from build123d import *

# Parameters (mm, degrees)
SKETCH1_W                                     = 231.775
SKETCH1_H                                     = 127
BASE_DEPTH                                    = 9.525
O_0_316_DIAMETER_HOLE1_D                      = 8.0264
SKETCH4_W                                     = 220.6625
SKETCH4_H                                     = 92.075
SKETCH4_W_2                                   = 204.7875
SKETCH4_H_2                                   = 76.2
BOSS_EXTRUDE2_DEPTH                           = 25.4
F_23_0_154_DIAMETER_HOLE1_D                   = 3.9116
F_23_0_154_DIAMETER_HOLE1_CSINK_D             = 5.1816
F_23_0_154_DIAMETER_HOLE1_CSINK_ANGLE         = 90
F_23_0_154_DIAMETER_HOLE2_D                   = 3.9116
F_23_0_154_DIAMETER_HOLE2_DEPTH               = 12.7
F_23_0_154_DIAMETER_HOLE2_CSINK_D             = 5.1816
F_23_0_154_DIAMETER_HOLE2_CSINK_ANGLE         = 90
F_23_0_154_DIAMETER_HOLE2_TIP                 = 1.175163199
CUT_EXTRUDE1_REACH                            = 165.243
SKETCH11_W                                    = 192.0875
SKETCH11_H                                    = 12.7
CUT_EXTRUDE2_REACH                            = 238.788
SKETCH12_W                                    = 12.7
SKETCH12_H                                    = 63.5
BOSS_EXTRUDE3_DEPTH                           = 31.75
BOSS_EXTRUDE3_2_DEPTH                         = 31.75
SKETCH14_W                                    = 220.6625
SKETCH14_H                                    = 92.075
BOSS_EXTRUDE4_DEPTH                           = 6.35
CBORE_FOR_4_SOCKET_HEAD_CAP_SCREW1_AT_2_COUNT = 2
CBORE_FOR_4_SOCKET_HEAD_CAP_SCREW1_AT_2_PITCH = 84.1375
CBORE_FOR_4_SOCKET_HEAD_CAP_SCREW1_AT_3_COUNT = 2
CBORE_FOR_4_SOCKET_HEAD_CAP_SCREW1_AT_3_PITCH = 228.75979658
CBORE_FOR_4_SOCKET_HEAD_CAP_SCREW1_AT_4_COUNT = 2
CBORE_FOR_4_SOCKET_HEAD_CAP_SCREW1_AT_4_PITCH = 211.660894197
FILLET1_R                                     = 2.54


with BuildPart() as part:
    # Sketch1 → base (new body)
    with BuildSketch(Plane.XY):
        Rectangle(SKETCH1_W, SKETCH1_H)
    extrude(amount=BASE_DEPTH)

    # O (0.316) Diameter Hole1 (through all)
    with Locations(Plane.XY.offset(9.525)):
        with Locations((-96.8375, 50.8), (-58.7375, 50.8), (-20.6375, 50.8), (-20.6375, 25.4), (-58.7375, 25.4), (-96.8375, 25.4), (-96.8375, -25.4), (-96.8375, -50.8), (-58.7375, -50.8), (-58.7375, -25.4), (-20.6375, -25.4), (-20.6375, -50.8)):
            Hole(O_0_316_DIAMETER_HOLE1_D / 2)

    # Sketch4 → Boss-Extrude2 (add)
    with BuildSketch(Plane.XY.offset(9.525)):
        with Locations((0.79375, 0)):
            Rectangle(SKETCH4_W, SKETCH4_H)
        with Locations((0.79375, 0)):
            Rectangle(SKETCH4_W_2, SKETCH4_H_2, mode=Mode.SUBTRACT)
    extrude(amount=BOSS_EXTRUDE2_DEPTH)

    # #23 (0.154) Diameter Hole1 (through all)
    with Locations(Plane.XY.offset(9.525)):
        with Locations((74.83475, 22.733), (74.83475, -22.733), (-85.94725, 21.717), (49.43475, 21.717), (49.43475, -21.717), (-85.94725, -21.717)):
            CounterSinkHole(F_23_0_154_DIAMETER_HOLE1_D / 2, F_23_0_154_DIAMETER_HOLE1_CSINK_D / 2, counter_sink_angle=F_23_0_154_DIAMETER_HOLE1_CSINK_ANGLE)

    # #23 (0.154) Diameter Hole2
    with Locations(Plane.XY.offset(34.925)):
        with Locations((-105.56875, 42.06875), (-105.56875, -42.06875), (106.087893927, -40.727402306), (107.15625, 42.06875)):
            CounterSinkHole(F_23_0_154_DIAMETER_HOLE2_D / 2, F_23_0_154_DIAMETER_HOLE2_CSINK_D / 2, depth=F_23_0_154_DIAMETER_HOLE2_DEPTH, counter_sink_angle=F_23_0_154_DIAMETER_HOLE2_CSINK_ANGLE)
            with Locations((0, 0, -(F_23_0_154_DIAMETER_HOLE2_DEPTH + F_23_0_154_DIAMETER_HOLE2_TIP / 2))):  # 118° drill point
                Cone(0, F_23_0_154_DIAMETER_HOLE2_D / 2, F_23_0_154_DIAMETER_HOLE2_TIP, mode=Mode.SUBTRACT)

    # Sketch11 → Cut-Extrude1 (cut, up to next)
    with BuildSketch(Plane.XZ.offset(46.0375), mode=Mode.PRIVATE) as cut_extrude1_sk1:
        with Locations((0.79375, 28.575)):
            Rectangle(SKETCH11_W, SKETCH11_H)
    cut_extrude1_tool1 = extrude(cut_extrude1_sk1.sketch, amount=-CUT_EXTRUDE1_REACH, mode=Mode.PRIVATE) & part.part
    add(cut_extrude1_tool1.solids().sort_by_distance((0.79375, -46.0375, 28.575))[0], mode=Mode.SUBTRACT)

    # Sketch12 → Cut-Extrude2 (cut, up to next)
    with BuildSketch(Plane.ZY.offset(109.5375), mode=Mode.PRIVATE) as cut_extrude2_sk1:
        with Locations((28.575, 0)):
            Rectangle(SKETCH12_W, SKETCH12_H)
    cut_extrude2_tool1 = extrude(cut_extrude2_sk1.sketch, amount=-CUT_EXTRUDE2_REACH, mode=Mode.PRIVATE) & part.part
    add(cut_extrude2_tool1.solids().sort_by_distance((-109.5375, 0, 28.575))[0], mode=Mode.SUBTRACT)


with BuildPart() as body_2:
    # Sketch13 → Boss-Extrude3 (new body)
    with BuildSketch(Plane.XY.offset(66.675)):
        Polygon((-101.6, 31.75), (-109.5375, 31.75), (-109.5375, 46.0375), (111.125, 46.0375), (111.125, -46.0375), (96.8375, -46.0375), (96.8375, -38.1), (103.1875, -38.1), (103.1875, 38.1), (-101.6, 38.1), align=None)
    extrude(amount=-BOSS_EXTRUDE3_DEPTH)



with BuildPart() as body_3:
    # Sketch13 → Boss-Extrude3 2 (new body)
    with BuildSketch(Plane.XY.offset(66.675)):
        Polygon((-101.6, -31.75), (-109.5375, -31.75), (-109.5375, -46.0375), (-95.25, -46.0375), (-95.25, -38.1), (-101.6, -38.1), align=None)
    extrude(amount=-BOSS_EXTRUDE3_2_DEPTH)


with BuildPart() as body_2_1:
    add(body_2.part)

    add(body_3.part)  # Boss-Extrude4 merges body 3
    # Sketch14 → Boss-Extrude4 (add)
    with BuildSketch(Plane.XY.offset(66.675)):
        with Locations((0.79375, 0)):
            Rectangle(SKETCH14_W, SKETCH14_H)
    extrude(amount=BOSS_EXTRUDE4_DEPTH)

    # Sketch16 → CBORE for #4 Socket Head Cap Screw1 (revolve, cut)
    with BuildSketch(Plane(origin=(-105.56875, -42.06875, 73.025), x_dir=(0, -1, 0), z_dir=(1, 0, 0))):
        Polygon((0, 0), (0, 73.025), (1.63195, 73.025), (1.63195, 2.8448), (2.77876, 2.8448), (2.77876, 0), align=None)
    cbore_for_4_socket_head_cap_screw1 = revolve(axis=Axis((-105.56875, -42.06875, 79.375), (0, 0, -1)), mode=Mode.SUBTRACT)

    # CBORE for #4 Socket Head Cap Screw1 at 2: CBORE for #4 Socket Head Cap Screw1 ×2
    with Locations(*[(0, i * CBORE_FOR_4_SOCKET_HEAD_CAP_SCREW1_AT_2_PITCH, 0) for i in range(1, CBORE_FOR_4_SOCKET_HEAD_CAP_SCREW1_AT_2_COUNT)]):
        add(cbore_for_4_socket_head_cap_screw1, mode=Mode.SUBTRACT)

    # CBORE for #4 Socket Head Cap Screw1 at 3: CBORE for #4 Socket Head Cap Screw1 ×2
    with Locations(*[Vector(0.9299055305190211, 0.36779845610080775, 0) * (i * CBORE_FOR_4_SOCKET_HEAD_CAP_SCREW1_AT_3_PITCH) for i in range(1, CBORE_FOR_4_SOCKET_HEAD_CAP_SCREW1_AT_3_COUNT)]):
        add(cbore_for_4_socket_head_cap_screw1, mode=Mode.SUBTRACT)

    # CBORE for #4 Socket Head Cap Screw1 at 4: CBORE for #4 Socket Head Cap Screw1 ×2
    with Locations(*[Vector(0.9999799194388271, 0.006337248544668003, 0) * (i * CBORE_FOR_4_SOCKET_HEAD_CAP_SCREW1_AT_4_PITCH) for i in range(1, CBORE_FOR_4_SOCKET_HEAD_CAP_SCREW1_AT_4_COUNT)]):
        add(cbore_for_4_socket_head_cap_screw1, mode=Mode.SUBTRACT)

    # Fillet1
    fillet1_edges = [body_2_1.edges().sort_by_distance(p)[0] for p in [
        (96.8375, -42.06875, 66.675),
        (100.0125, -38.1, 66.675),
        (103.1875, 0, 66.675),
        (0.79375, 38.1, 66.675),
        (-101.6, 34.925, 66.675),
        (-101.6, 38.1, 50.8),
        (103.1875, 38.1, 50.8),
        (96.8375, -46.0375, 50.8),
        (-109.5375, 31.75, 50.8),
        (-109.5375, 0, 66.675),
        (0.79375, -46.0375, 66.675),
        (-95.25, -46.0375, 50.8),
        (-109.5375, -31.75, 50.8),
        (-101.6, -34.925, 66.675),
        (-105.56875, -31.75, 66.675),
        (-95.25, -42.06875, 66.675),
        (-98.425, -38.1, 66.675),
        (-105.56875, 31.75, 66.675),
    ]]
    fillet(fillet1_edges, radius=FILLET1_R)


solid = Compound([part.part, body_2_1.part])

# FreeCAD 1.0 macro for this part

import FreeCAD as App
import Part
import Sketcher
from FreeCAD import Vector
Q = App.Units.Quantity


def edges_at(feature, points):
    """Names of the edges that pass closest to the given points."""
    edges = feature.Shape.Edges
    near = lambda p: min(range(len(edges)), key=lambda i: edges[i].distToShape(Part.Vertex(*p))[0])
    return sorted({f"Edge{near(p) + 1}" for p in points})

doc = App.newDocument("Part")
body = doc.addObject("PartDesign::Body", "Body")

# Sketch on XY plane
sketch1 = body.newObject("Sketcher::SketchObject", "Sketch")
sketch1.AttachmentSupport = (doc.getObject("XY_Plane"), [""])
sketch1.MapMode = "FlatFace"
sketch1.addGeometry([
    Part.LineSegment(Vector(-116, 64, 0), Vector(-116, -64, 0)),
    Part.LineSegment(Vector(-116, -64, 0), Vector(116, -64, 0)),
    Part.LineSegment(Vector(116, -64, 0), Vector(116, 64, 0)),
    Part.LineSegment(Vector(116, 64, 0), Vector(-116, 64, 0)),
], False)
sketch1.addConstraint([
    Sketcher.Constraint("Coincident", 0, 2, 1, 1),
    Sketcher.Constraint("Coincident", 1, 2, 2, 1),
    Sketcher.Constraint("Coincident", 2, 2, 3, 1),
    Sketcher.Constraint("Coincident", 3, 2, 0, 1),
    Sketcher.Constraint("Vertical", 0),
    Sketcher.Constraint("Horizontal", 1),
    Sketcher.Constraint("Vertical", 2),
    Sketcher.Constraint("Horizontal", 3),
    Sketcher.Constraint("Symmetric", 0, 2, 2, 2, -1, 1),
    Sketcher.Constraint("DistanceY", 0, 2, 0, 1, Q("5 in")),
    Sketcher.Constraint("DistanceX", 1, 1, 1, 2, Q("9.125 in")),
])
pad1 = body.newObject("PartDesign::Pad", "Pad")
pad1.Profile = sketch1
pad1.Length = Q("0.375 in")

# Sketch on XY plane
sketch2 = body.newObject("Sketcher::SketchObject", "Sketch001")
sketch2.AttachmentSupport = (doc.getObject("XY_Plane"), [""])
sketch2.MapMode = "FlatFace"
sketch2.AttachmentOffset = App.Placement(Vector(0, 0, 0.375 * 25.4), App.Rotation())
sketch2.addGeometry([
    Part.Circle(Vector(-96.8, 50.8, 0), Vector(0, 0, 1), 4),  # 0
    Part.Circle(Vector(-58.7, 50.8, 0), Vector(0, 0, 1), 4),  # 1
    Part.Circle(Vector(-20.6, 50.8, 0), Vector(0, 0, 1), 4),  # 2
    Part.Circle(Vector(-20.6, 25.4, 0), Vector(0, 0, 1), 4),  # 3
    Part.Circle(Vector(-58.7, 25.4, 0), Vector(0, 0, 1), 4),  # 4
    Part.Circle(Vector(-96.8, 25.4, 0), Vector(0, 0, 1), 4),  # 5
    Part.Circle(Vector(-96.8, -25.4, 0), Vector(0, 0, 1), 4),  # 6
    Part.Circle(Vector(-96.8, -50.8, 0), Vector(0, 0, 1), 4),  # 7
    Part.Circle(Vector(-58.7, -50.8, 0), Vector(0, 0, 1), 4),  # 8
    Part.Circle(Vector(-58.7, -25.4, 0), Vector(0, 0, 1), 4),  # 9
    Part.Circle(Vector(-20.6, -25.4, 0), Vector(0, 0, 1), 4),  # 10
    Part.Circle(Vector(-20.6, -50.8, 0), Vector(0, 0, 1), 4),  # 11
], False)
sketch2.addConstraint([
    Sketcher.Constraint("Equal", 0, 1),
    Sketcher.Constraint("Equal", 1, 2),
    Sketcher.Constraint("Equal", 2, 3),
    Sketcher.Constraint("Equal", 3, 4),
    Sketcher.Constraint("Equal", 4, 5),
    Sketcher.Constraint("Equal", 5, 6),
    Sketcher.Constraint("Equal", 6, 7),
    Sketcher.Constraint("Equal", 7, 8),
    Sketcher.Constraint("Equal", 8, 9),
    Sketcher.Constraint("Equal", 9, 10),
    Sketcher.Constraint("Equal", 10, 11),
    Sketcher.Constraint("Symmetric", 5, 3, 6, 3, -1),
    Sketcher.Constraint("Symmetric", 0, 3, 7, 3, -1),
    Sketcher.Constraint("Symmetric", 1, 3, 8, 3, -1),
    Sketcher.Constraint("Symmetric", 4, 3, 9, 3, -1),
    Sketcher.Constraint("Symmetric", 3, 3, 10, 3, -1),
    Sketcher.Constraint("Symmetric", 2, 3, 11, 3, -1),
    Sketcher.Constraint("Horizontal", 0, 3, 1, 3),
    Sketcher.Constraint("Horizontal", 1, 3, 2, 3),
    Sketcher.Constraint("Horizontal", 3, 3, 4, 3),
    Sketcher.Constraint("Horizontal", 4, 3, 5, 3),
    Sketcher.Constraint("Vertical", 2, 3, 3, 3),
    Sketcher.Constraint("Vertical", 1, 3, 4, 3),
    Sketcher.Constraint("Vertical", 0, 3, 5, 3),
    Sketcher.Constraint("Diameter", 0, Q("0.316 in")),
    Sketcher.Constraint("DistanceY", -1, 1, 0, 3, Q("2 in")),
    Sketcher.Constraint("DistanceY", -1, 1, 3, 3, Q("1 in")),
    Sketcher.Constraint("DistanceX", 0, 3, 2, 3, Q("3 in")),
    Sketcher.Constraint("DistanceX", 0, 3, 1, 3, Q("1.5 in")),
    Sketcher.Constraint("DistanceX", 0, 3, -1, 1, Q("3.8125 in")),
])
doc.recompute()
hole = body.newObject("PartDesign::Hole", "Hole")
hole.Profile = sketch2
hole.ThreadType = "None"
hole.Diameter = Q("0.316 in")
hole.DepthType = "ThroughAll"

# Sketch on XY plane
sketch3 = body.newObject("Sketcher::SketchObject", "Sketch002")
sketch3.AttachmentSupport = (doc.getObject("XY_Plane"), [""])
sketch3.MapMode = "FlatFace"
sketch3.AttachmentOffset = App.Placement(Vector(0, 0, 0.375 * 25.4), App.Rotation())
sketch3.addGeometry([
    Part.LineSegment(Vector(-110, 46, 0), Vector(-110, -46, 0)),  # 0
    Part.LineSegment(Vector(-110, -46, 0), Vector(111, -46, 0)),  # 1
    Part.LineSegment(Vector(111, -46, 0), Vector(111, 46, 0)),  # 2
    Part.LineSegment(Vector(111, 46, 0), Vector(-110, 46, 0)),  # 3
    Part.LineSegment(Vector(103, -38, 0), Vector(-102, -38, 0)),  # 4
    Part.LineSegment(Vector(-102, -38, 0), Vector(-102, 38, 0)),  # 5
    Part.LineSegment(Vector(-102, 38, 0), Vector(103, 38, 0)),  # 6
    Part.LineSegment(Vector(103, 38, 0), Vector(103, -38, 0)),  # 7
], False)
sketch3.addConstraint([
    Sketcher.Constraint("Coincident", 0, 2, 1, 1),
    Sketcher.Constraint("Coincident", 1, 2, 2, 1),
    Sketcher.Constraint("Coincident", 2, 2, 3, 1),
    Sketcher.Constraint("Coincident", 3, 2, 0, 1),
    Sketcher.Constraint("Coincident", 4, 2, 5, 1),
    Sketcher.Constraint("Coincident", 5, 2, 6, 1),
    Sketcher.Constraint("Coincident", 6, 2, 7, 1),
    Sketcher.Constraint("Coincident", 7, 2, 4, 1),
    Sketcher.Constraint("Vertical", 0),
    Sketcher.Constraint("Horizontal", 1),
    Sketcher.Constraint("Vertical", 2),
    Sketcher.Constraint("Horizontal", 3),
    Sketcher.Constraint("Horizontal", 4),
    Sketcher.Constraint("Vertical", 5),
    Sketcher.Constraint("Horizontal", 6),
    Sketcher.Constraint("Vertical", 7),
    Sketcher.Constraint("DistanceY", 5, 1, 5, 2, Q("3 in")),
    Sketcher.Constraint("DistanceX", 4, 2, -1, 1, Q("4 in")),
    Sketcher.Constraint("DistanceY", 4, 2, -1, 1, Q("1.5 in")),
    Sketcher.Constraint("DistanceX", 1, 1, 1, 2, Q("8.6875 in")),
    Sketcher.Constraint("DistanceX", 4, 2, 4, 1, Q("8.0625 in")),
    Sketcher.Constraint("DistanceY", 0, 2, 0, 1, Q("3.625 in")),
    Sketcher.Constraint("DistanceX", 0, 2, -1, 1, Q("4.3125 in")),
    Sketcher.Constraint("DistanceY", 0, 2, -1, 1, Q("1.8125 in")),
])
pad2 = body.newObject("PartDesign::Pad", "Pad001")
pad2.Profile = sketch3
pad2.Length = Q("1 in")

# Sketch on XY plane
sketch4 = body.newObject("Sketcher::SketchObject", "Sketch003")
sketch4.AttachmentSupport = (doc.getObject("XY_Plane"), [""])
sketch4.MapMode = "FlatFace"
sketch4.AttachmentOffset = App.Placement(Vector(0, 0, 0.375 * 25.4), App.Rotation())
sketch4.addGeometry([
    Part.Circle(Vector(74.8, 22.7, 0), Vector(0, 0, 1), 2),  # 0
    Part.Circle(Vector(74.8, -22.7, 0), Vector(0, 0, 1), 2),  # 1
    Part.Circle(Vector(-85.9, 21.7, 0), Vector(0, 0, 1), 2),  # 2
    Part.Circle(Vector(49.4, 21.7, 0), Vector(0, 0, 1), 2),  # 3
    Part.Circle(Vector(49.4, -21.7, 0), Vector(0, 0, 1), 2),  # 4
    Part.Circle(Vector(-85.9, -21.7, 0), Vector(0, 0, 1), 2),  # 5
], False)
sketch4.addConstraint([
    Sketcher.Constraint("Equal", 0, 1),
    Sketcher.Constraint("Equal", 1, 2),
    Sketcher.Constraint("Equal", 2, 3),
    Sketcher.Constraint("Equal", 3, 4),
    Sketcher.Constraint("Equal", 4, 5),
    Sketcher.Constraint("Symmetric", 0, 3, 1, 3, -1),
    Sketcher.Constraint("Symmetric", 3, 3, 4, 3, -1),
    Sketcher.Constraint("Symmetric", 2, 3, 5, 3, -1),
    Sketcher.Constraint("Horizontal", 2, 3, 3, 3),
    Sketcher.Constraint("Diameter", 0, Q("0.154 in")),
    Sketcher.Constraint("DistanceX", 3, 3, 0, 3, Q("1 in")),
    Sketcher.Constraint("DistanceY", 1, 3, 0, 3, Q("1.79 in")),
    Sketcher.Constraint("DistanceX", 2, 3, 0, 3, Q("6.33 in")),
    Sketcher.Constraint("DistanceY", 2, 3, 0, 3, Q("0.04 in")),
    Sketcher.Constraint("DistanceX", -1, 1, 0, 3, 74.83475),
])
doc.recompute()
hole2 = body.newObject("PartDesign::Hole", "Hole001")
hole2.Profile = sketch4
hole2.ThreadType = "None"
hole2.Diameter = Q("0.154 in")
hole2.DepthType = "ThroughAll"
hole2.HoleCutType = "Countersink"
hole2.HoleCutDiameter = Q("0.204 in")
hole2.HoleCutCountersinkAngle = 90

# Sketch on XY plane
sketch5 = body.newObject("Sketcher::SketchObject", "Sketch004")
sketch5.AttachmentSupport = (doc.getObject("XY_Plane"), [""])
sketch5.MapMode = "FlatFace"
sketch5.AttachmentOffset = App.Placement(Vector(0, 0, 1.375 * 25.4), App.Rotation())
sketch5.addGeometry([
    Part.Circle(Vector(-105.6, 42.1, 0), Vector(0, 0, 1), 2),
    Part.Circle(Vector(-105.6, -42.1, 0), Vector(0, 0, 1), 2),
    Part.Circle(Vector(106.1, -40.7, 0), Vector(0, 0, 1), 2),
    Part.Circle(Vector(107.2, 42.1, 0), Vector(0, 0, 1), 2),
], False)
sketch5.addConstraint([
    Sketcher.Constraint("Equal", 0, 1),
    Sketcher.Constraint("Equal", 1, 2),
    Sketcher.Constraint("Equal", 2, 3),
    Sketcher.Constraint("Symmetric", 0, 3, 1, 3, -1),
    Sketcher.Constraint("Horizontal", 0, 3, 3, 3),
    Sketcher.Constraint("Diameter", 0, Q("0.154 in")),
    Sketcher.Constraint("DistanceX", 0, 3, -1, 1, Q("4.15625 in")),
    Sketcher.Constraint("DistanceY", -1, 1, 0, 3, Q("1.65625 in")),
    Sketcher.Constraint("DistanceX", -1, 1, 3, 3, Q("4.21875 in")),
    Sketcher.Constraint("DistanceX", -1, 1, 2, 3, 106.087894),
    Sketcher.Constraint("DistanceY", 2, 3, -1, 1, 40.727402),
])
doc.recompute()
hole3 = body.newObject("PartDesign::Hole", "Hole002")
hole3.Profile = sketch5
hole3.ThreadType = "None"
hole3.Diameter = Q("0.154 in")
hole3.DepthType = "Dimension"
hole3.Depth = Q("0.5 in")
hole3.DrillPoint = "Angled"
hole3.DrillPointAngle = 118
hole3.HoleCutType = "Countersink"
hole3.HoleCutDiameter = Q("0.204 in")
hole3.HoleCutCountersinkAngle = 90

# Sketch on XZ plane
sketch6 = body.newObject("Sketcher::SketchObject", "Sketch005")
sketch6.AttachmentSupport = (doc.getObject("XZ_Plane"), [""])
sketch6.MapMode = "FlatFace"
sketch6.AttachmentOffset = App.Placement(Vector(0, 0, 1.8125 * 25.4), App.Rotation())
sketch6.addGeometry([
    Part.LineSegment(Vector(-95, 35, 0), Vector(-95, 22, 0)),
    Part.LineSegment(Vector(-95, 22, 0), Vector(97, 22, 0)),
    Part.LineSegment(Vector(97, 22, 0), Vector(97, 35, 0)),
    Part.LineSegment(Vector(97, 35, 0), Vector(-95, 35, 0)),
], False)
sketch6.addConstraint([
    Sketcher.Constraint("Coincident", 0, 2, 1, 1),
    Sketcher.Constraint("Coincident", 1, 2, 2, 1),
    Sketcher.Constraint("Coincident", 2, 2, 3, 1),
    Sketcher.Constraint("Coincident", 3, 2, 0, 1),
    Sketcher.Constraint("Vertical", 0),
    Sketcher.Constraint("Horizontal", 1),
    Sketcher.Constraint("Vertical", 2),
    Sketcher.Constraint("Horizontal", 3),
    Sketcher.Constraint("DistanceY", 0, 2, 0, 1, Q("0.5 in")),
    Sketcher.Constraint("DistanceX", 1, 1, 1, 2, Q("7.5625 in")),
    Sketcher.Constraint("DistanceX", 0, 2, -1, 1, Q("3.75 in")),
    Sketcher.Constraint("DistanceY", -1, 1, 0, 2, Q("0.875 in")),
])
pocket1 = body.newObject("PartDesign::Pocket", "Pocket")
pocket1.Profile = sketch6
pocket1.Type = "UpToFirst"

# Sketch on YZ plane
sketch7 = body.newObject("Sketcher::SketchObject", "Sketch006")
sketch7.AttachmentSupport = (doc.getObject("YZ_Plane"), [""])
sketch7.MapMode = "FlatFace"
sketch7.AttachmentOffset = App.Placement(Vector(0, 0, -4.3125 * 25.4), App.Rotation())
sketch7.addGeometry([
    Part.LineSegment(Vector(32, 22, 0), Vector(-32, 22, 0)),
    Part.LineSegment(Vector(-32, 22, 0), Vector(-32, 35, 0)),
    Part.LineSegment(Vector(-32, 35, 0), Vector(32, 35, 0)),
    Part.LineSegment(Vector(32, 35, 0), Vector(32, 22, 0)),
], False)
sketch7.addConstraint([
    Sketcher.Constraint("Coincident", 0, 2, 1, 1),
    Sketcher.Constraint("Coincident", 1, 2, 2, 1),
    Sketcher.Constraint("Coincident", 2, 2, 3, 1),
    Sketcher.Constraint("Coincident", 3, 2, 0, 1),
    Sketcher.Constraint("Horizontal", 0),
    Sketcher.Constraint("Vertical", 1),
    Sketcher.Constraint("Horizontal", 2),
    Sketcher.Constraint("Vertical", 3),
    Sketcher.Constraint("DistanceX", 0, 2, 0, 1, Q("2.5 in")),
    Sketcher.Constraint("DistanceY", 1, 1, 1, 2, Q("0.5 in")),
    Sketcher.Constraint("DistanceX", 0, 2, -1, 1, Q("1.25 in")),
    Sketcher.Constraint("DistanceY", -1, 1, 0, 2, Q("0.875 in")),
])
pocket2 = body.newObject("PartDesign::Pocket", "Pocket001")
pocket2.Profile = sketch7
pocket2.Type = "UpToFirst"
pocket2.Reversed = True
body2 = doc.addObject("PartDesign::Body", "Body001")

# Sketch on XY plane
sketch8 = body2.newObject("Sketcher::SketchObject", "Sketch007")
sketch8.AttachmentSupport = (doc.getObject("XY_Plane001"), [""])
sketch8.MapMode = "FlatFace"
sketch8.AttachmentOffset = App.Placement(Vector(0, 0, 2.625 * 25.4), App.Rotation())
sketch8.addGeometry([
    Part.LineSegment(Vector(-110, 32, 0), Vector(-102, 32, 0)),  # 0
    Part.LineSegment(Vector(-102, 32, 0), Vector(-102, 38, 0)),  # 1
    Part.LineSegment(Vector(-102, 38, 0), Vector(103, 38, 0)),  # 2
    Part.LineSegment(Vector(103, 38, 0), Vector(103, -38, 0)),  # 3
    Part.LineSegment(Vector(103, -38, 0), Vector(97, -38, 0)),  # 4
    Part.LineSegment(Vector(97, -38, 0), Vector(97, -46, 0)),  # 5
    Part.LineSegment(Vector(97, -46, 0), Vector(111, -46, 0)),  # 6
    Part.LineSegment(Vector(111, -46, 0), Vector(111, 46, 0)),  # 7
    Part.LineSegment(Vector(111, 46, 0), Vector(-110, 46, 0)),  # 8
    Part.LineSegment(Vector(-110, 46, 0), Vector(-110, 32, 0)),  # 9
], False)
sketch8.addConstraint([
    Sketcher.Constraint("Coincident", 0, 2, 1, 1),
    Sketcher.Constraint("Coincident", 1, 2, 2, 1),
    Sketcher.Constraint("Coincident", 2, 2, 3, 1),
    Sketcher.Constraint("Coincident", 3, 2, 4, 1),
    Sketcher.Constraint("Coincident", 4, 2, 5, 1),
    Sketcher.Constraint("Coincident", 5, 2, 6, 1),
    Sketcher.Constraint("Coincident", 6, 2, 7, 1),
    Sketcher.Constraint("Coincident", 7, 2, 8, 1),
    Sketcher.Constraint("Coincident", 8, 2, 9, 1),
    Sketcher.Constraint("Coincident", 9, 2, 0, 1),
    Sketcher.Constraint("Horizontal", 0),
    Sketcher.Constraint("Vertical", 1),
    Sketcher.Constraint("Horizontal", 2),
    Sketcher.Constraint("Vertical", 3),
    Sketcher.Constraint("Horizontal", 4),
    Sketcher.Constraint("Vertical", 5),
    Sketcher.Constraint("Horizontal", 6),
    Sketcher.Constraint("Vertical", 7),
    Sketcher.Constraint("Horizontal", 8),
    Sketcher.Constraint("Vertical", 9),
    Sketcher.Constraint("Equal", 4, 1),
    Sketcher.Constraint("Equal", 0, 5),
    Sketcher.Constraint("Equal", 6, 9),
    Sketcher.Constraint("DistanceY", 3, 2, 3, 1, Q("3 in")),
    Sketcher.Constraint("DistanceX", 0, 2, -1, 1, Q("4 in")),
    Sketcher.Constraint("DistanceX", 4, 2, 4, 1, Q("0.25 in")),
    Sketcher.Constraint("DistanceY", -1, 1, 1, 2, Q("1.5 in")),
    Sketcher.Constraint("DistanceX", 0, 1, 0, 2, Q("0.3125 in")),
    Sketcher.Constraint("DistanceX", 2, 1, 2, 2, Q("8.0625 in")),
    Sketcher.Constraint("DistanceX", 6, 1, 6, 2, Q("0.5625 in")),
])
pad3 = body2.newObject("PartDesign::Pad", "Pad002")
pad3.Profile = sketch8
pad3.Length = Q("1.25 in")
pad3.Reversed = True
body3 = doc.addObject("PartDesign::Body", "Body002")

# Sketch on XY plane
sketch9 = body3.newObject("Sketcher::SketchObject", "Sketch008")
sketch9.AttachmentSupport = (doc.getObject("XY_Plane002"), [""])
sketch9.MapMode = "FlatFace"
sketch9.AttachmentOffset = App.Placement(Vector(0, 0, 2.625 * 25.4), App.Rotation())
sketch9.addGeometry([
    Part.LineSegment(Vector(-102, -32, 0), Vector(-110, -32, 0)),  # 0
    Part.LineSegment(Vector(-110, -32, 0), Vector(-110, -46, 0)),  # 1
    Part.LineSegment(Vector(-110, -46, 0), Vector(-95, -46, 0)),  # 2
    Part.LineSegment(Vector(-95, -46, 0), Vector(-95, -38, 0)),  # 3
    Part.LineSegment(Vector(-95, -38, 0), Vector(-102, -38, 0)),  # 4
    Part.LineSegment(Vector(-102, -38, 0), Vector(-102, -32, 0)),  # 5
], False)
sketch9.addConstraint([
    Sketcher.Constraint("Coincident", 0, 2, 1, 1),
    Sketcher.Constraint("Coincident", 1, 2, 2, 1),
    Sketcher.Constraint("Coincident", 2, 2, 3, 1),
    Sketcher.Constraint("Coincident", 3, 2, 4, 1),
    Sketcher.Constraint("Coincident", 4, 2, 5, 1),
    Sketcher.Constraint("Coincident", 5, 2, 0, 1),
    Sketcher.Constraint("Horizontal", 0),
    Sketcher.Constraint("Vertical", 1),
    Sketcher.Constraint("Horizontal", 2),
    Sketcher.Constraint("Vertical", 3),
    Sketcher.Constraint("Horizontal", 4),
    Sketcher.Constraint("Vertical", 5),
    Sketcher.Constraint("Equal", 2, 1),
    Sketcher.Constraint("Equal", 0, 3),
    Sketcher.Constraint("DistanceX", 4, 2, -1, 1, Q("4 in")),
    Sketcher.Constraint("DistanceX", 4, 2, 4, 1, Q("0.25 in")),
    Sketcher.Constraint("DistanceY", 3, 2, -1, 1, Q("1.5 in")),
    Sketcher.Constraint("DistanceX", 0, 2, 0, 1, Q("0.3125 in")),
])
pad4 = body3.newObject("PartDesign::Pad", "Pad003")
pad4.Profile = sketch9
pad4.Length = Q("1.25 in")
pad4.Reversed = True
body2.AllowCompound = True
doc.recompute()

boolean = body2.newObject("PartDesign::Boolean", "Boolean")
boolean.Type = "Fuse"
boolean.addObjects([body3])

# Sketch on XY plane
sketch10 = body2.newObject("Sketcher::SketchObject", "Sketch009")
sketch10.AttachmentSupport = (doc.getObject("XY_Plane001"), [""])
sketch10.MapMode = "FlatFace"
sketch10.AttachmentOffset = App.Placement(Vector(0, 0, 2.625 * 25.4), App.Rotation())
sketch10.addGeometry([
    Part.LineSegment(Vector(-110, 46, 0), Vector(-110, -46, 0)),
    Part.LineSegment(Vector(-110, -46, 0), Vector(111, -46, 0)),
    Part.LineSegment(Vector(111, -46, 0), Vector(111, 46, 0)),
    Part.LineSegment(Vector(111, 46, 0), Vector(-110, 46, 0)),
], False)
sketch10.addConstraint([
    Sketcher.Constraint("Coincident", 0, 2, 1, 1),
    Sketcher.Constraint("Coincident", 1, 2, 2, 1),
    Sketcher.Constraint("Coincident", 2, 2, 3, 1),
    Sketcher.Constraint("Coincident", 3, 2, 0, 1),
    Sketcher.Constraint("Vertical", 0),
    Sketcher.Constraint("Horizontal", 1),
    Sketcher.Constraint("Vertical", 2),
    Sketcher.Constraint("Horizontal", 3),
    Sketcher.Constraint("DistanceX", 1, 1, 1, 2, Q("8.6875 in")),
    Sketcher.Constraint("DistanceY", 0, 2, 0, 1, Q("3.625 in")),
    Sketcher.Constraint("DistanceX", 0, 2, -1, 1, Q("4.3125 in")),
    Sketcher.Constraint("DistanceY", 0, 2, -1, 1, Q("1.8125 in")),
])
pad5 = body2.newObject("PartDesign::Pad", "Pad004")
pad5.Profile = sketch10
pad5.Length = Q("0.25 in")

# Sketch on YZ plane
sketch11 = body2.newObject("Sketcher::SketchObject", "Sketch010")
sketch11.AttachmentSupport = (doc.getObject("YZ_Plane001"), [""])
sketch11.MapMode = "FlatFace"
sketch11.AttachmentOffset = App.Placement(Vector(0, 0, -4.15625 * 25.4), App.Rotation())
sketch11.addGeometry([
    Part.LineSegment(Vector(-42.1, 0, 0), Vector(-42.1, 73, 0)),  # 0
    Part.LineSegment(Vector(-42.1, 73, 0), Vector(-44.8, 73, 0)),  # 1
    Part.LineSegment(Vector(-44.8, 73, 0), Vector(-44.8, 70.2, 0)),  # 2
    Part.LineSegment(Vector(-44.8, 70.2, 0), Vector(-43.7, 70.2, 0)),  # 3
    Part.LineSegment(Vector(-43.7, 70.2, 0), Vector(-43.7, 0, 0)),  # 4
    Part.LineSegment(Vector(-43.7, 0, 0), Vector(-42.1, 0, 0)),  # 5
], False)
sketch11.addGeometry(Part.LineSegment(Vector(-42.1, 73, 0), Vector(-42.1, 0, 0)), True)  # axis
sketch11.addConstraint([
    Sketcher.Constraint("Coincident", 0, 2, 1, 1),
    Sketcher.Constraint("Coincident", 1, 2, 2, 1),
    Sketcher.Constraint("Coincident", 2, 2, 3, 1),
    Sketcher.Constraint("Coincident", 3, 2, 4, 1),
    Sketcher.Constraint("Coincident", 4, 2, 5, 1),
    Sketcher.Constraint("Coincident", 5, 2, 0, 1),
    Sketcher.Constraint("Vertical", 0),
    Sketcher.Constraint("Horizontal", 1),
    Sketcher.Constraint("Vertical", 2),
    Sketcher.Constraint("Horizontal", 3),
    Sketcher.Constraint("Vertical", 4),
    Sketcher.Constraint("Horizontal", 5),
    Sketcher.Constraint("Vertical", 6),
    Sketcher.Constraint("Coincident", 6, 1, 0, 2),
    Sketcher.Constraint("PointOnObject", 4, 2, -1),
    Sketcher.Constraint("PointOnObject", 6, 2, -1),
    Sketcher.Constraint("DistanceY", 0, 1, 0, 2, Q("2.875 in")),
    Sketcher.Constraint("DistanceY", 2, 2, 2, 1, Q("0.112 in")),
    Sketcher.Constraint("DistanceX", 1, 2, 1, 1, Q("0.1094 in")),
    Sketcher.Constraint("DistanceX", 0, 2, -1, 1, Q("1.65625 in")),
    Sketcher.Constraint("DistanceX", 3, 2, -1, 1, Q("1.7205 in")),
])
groove = body2.newObject("PartDesign::Groove", "Groove")
groove.Profile = sketch11
groove.ReferenceAxis = (sketch11, ["Axis0"])
groove.Angle = 360
doc.recompute()

linearpattern = body2.newObject("PartDesign::LinearPattern", "LinearPattern")
linearpattern.Originals = [groove]
linearpattern.Direction = (doc.getObject("Y_Axis001"), [""])
linearpattern.Mode = "offset"
linearpattern.Offset = Q("3.3125 in")
linearpattern.Occurrences = 2
body2.Tip = linearpattern
doc.recompute()

datumline = body2.newObject("PartDesign::Line", "DatumLine")
datumline.Placement = App.Placement(Vector(0, 0, 0), App.Rotation(Vector(0, 0, 1), Vector(0.929905531, 0.367798456, 0)))
linearpattern2 = body2.newObject("PartDesign::LinearPattern", "LinearPattern001")
linearpattern2.Originals = [groove]
linearpattern2.Direction = (datumline, [""])
linearpattern2.Mode = "offset"
linearpattern2.Offset = 228.759797
linearpattern2.Occurrences = 2
body2.Tip = linearpattern2
doc.recompute()

datumline2 = body2.newObject("PartDesign::Line", "DatumLine001")
datumline2.Placement = App.Placement(Vector(0, 0, 0), App.Rotation(Vector(0, 0, 1), Vector(0.999979919, 0.006337249, 0)))
linearpattern3 = body2.newObject("PartDesign::LinearPattern", "LinearPattern002")
linearpattern3.Originals = [groove]
linearpattern3.Direction = (datumline2, [""])
linearpattern3.Mode = "offset"
linearpattern3.Offset = 211.660894
linearpattern3.Occurrences = 2
body2.Tip = linearpattern3
doc.recompute()

fillet = body2.newObject("PartDesign::Fillet", "Fillet")
fillet.Base = (linearpattern3, edges_at(linearpattern3, [
    (96.838, -42.069, 66.675),
    (100.013, -38.1, 66.675),
    (103.188, 0, 66.675),
    (0.794, 38.1, 66.675),
    (-101.6, 34.925, 66.675),
    (-101.6, 38.1, 50.8),
    (103.188, 38.1, 50.8),
    (96.838, -46.038, 50.8),
    (-109.537, 31.75, 50.8),
    (-109.537, 0, 66.675),
    (0.794, -46.038, 66.675),
    (-95.25, -46.038, 50.8),
    (-109.537, -31.75, 50.8),
    (-101.6, -34.925, 66.675),
    (-105.569, -31.75, 66.675),
    (-95.25, -42.069, 66.675),
    (-98.425, -38.1, 66.675),
    (-105.569, 31.75, 66.675),
]))
fillet.Radius = Q("0.1 in")

doc.recompute()
